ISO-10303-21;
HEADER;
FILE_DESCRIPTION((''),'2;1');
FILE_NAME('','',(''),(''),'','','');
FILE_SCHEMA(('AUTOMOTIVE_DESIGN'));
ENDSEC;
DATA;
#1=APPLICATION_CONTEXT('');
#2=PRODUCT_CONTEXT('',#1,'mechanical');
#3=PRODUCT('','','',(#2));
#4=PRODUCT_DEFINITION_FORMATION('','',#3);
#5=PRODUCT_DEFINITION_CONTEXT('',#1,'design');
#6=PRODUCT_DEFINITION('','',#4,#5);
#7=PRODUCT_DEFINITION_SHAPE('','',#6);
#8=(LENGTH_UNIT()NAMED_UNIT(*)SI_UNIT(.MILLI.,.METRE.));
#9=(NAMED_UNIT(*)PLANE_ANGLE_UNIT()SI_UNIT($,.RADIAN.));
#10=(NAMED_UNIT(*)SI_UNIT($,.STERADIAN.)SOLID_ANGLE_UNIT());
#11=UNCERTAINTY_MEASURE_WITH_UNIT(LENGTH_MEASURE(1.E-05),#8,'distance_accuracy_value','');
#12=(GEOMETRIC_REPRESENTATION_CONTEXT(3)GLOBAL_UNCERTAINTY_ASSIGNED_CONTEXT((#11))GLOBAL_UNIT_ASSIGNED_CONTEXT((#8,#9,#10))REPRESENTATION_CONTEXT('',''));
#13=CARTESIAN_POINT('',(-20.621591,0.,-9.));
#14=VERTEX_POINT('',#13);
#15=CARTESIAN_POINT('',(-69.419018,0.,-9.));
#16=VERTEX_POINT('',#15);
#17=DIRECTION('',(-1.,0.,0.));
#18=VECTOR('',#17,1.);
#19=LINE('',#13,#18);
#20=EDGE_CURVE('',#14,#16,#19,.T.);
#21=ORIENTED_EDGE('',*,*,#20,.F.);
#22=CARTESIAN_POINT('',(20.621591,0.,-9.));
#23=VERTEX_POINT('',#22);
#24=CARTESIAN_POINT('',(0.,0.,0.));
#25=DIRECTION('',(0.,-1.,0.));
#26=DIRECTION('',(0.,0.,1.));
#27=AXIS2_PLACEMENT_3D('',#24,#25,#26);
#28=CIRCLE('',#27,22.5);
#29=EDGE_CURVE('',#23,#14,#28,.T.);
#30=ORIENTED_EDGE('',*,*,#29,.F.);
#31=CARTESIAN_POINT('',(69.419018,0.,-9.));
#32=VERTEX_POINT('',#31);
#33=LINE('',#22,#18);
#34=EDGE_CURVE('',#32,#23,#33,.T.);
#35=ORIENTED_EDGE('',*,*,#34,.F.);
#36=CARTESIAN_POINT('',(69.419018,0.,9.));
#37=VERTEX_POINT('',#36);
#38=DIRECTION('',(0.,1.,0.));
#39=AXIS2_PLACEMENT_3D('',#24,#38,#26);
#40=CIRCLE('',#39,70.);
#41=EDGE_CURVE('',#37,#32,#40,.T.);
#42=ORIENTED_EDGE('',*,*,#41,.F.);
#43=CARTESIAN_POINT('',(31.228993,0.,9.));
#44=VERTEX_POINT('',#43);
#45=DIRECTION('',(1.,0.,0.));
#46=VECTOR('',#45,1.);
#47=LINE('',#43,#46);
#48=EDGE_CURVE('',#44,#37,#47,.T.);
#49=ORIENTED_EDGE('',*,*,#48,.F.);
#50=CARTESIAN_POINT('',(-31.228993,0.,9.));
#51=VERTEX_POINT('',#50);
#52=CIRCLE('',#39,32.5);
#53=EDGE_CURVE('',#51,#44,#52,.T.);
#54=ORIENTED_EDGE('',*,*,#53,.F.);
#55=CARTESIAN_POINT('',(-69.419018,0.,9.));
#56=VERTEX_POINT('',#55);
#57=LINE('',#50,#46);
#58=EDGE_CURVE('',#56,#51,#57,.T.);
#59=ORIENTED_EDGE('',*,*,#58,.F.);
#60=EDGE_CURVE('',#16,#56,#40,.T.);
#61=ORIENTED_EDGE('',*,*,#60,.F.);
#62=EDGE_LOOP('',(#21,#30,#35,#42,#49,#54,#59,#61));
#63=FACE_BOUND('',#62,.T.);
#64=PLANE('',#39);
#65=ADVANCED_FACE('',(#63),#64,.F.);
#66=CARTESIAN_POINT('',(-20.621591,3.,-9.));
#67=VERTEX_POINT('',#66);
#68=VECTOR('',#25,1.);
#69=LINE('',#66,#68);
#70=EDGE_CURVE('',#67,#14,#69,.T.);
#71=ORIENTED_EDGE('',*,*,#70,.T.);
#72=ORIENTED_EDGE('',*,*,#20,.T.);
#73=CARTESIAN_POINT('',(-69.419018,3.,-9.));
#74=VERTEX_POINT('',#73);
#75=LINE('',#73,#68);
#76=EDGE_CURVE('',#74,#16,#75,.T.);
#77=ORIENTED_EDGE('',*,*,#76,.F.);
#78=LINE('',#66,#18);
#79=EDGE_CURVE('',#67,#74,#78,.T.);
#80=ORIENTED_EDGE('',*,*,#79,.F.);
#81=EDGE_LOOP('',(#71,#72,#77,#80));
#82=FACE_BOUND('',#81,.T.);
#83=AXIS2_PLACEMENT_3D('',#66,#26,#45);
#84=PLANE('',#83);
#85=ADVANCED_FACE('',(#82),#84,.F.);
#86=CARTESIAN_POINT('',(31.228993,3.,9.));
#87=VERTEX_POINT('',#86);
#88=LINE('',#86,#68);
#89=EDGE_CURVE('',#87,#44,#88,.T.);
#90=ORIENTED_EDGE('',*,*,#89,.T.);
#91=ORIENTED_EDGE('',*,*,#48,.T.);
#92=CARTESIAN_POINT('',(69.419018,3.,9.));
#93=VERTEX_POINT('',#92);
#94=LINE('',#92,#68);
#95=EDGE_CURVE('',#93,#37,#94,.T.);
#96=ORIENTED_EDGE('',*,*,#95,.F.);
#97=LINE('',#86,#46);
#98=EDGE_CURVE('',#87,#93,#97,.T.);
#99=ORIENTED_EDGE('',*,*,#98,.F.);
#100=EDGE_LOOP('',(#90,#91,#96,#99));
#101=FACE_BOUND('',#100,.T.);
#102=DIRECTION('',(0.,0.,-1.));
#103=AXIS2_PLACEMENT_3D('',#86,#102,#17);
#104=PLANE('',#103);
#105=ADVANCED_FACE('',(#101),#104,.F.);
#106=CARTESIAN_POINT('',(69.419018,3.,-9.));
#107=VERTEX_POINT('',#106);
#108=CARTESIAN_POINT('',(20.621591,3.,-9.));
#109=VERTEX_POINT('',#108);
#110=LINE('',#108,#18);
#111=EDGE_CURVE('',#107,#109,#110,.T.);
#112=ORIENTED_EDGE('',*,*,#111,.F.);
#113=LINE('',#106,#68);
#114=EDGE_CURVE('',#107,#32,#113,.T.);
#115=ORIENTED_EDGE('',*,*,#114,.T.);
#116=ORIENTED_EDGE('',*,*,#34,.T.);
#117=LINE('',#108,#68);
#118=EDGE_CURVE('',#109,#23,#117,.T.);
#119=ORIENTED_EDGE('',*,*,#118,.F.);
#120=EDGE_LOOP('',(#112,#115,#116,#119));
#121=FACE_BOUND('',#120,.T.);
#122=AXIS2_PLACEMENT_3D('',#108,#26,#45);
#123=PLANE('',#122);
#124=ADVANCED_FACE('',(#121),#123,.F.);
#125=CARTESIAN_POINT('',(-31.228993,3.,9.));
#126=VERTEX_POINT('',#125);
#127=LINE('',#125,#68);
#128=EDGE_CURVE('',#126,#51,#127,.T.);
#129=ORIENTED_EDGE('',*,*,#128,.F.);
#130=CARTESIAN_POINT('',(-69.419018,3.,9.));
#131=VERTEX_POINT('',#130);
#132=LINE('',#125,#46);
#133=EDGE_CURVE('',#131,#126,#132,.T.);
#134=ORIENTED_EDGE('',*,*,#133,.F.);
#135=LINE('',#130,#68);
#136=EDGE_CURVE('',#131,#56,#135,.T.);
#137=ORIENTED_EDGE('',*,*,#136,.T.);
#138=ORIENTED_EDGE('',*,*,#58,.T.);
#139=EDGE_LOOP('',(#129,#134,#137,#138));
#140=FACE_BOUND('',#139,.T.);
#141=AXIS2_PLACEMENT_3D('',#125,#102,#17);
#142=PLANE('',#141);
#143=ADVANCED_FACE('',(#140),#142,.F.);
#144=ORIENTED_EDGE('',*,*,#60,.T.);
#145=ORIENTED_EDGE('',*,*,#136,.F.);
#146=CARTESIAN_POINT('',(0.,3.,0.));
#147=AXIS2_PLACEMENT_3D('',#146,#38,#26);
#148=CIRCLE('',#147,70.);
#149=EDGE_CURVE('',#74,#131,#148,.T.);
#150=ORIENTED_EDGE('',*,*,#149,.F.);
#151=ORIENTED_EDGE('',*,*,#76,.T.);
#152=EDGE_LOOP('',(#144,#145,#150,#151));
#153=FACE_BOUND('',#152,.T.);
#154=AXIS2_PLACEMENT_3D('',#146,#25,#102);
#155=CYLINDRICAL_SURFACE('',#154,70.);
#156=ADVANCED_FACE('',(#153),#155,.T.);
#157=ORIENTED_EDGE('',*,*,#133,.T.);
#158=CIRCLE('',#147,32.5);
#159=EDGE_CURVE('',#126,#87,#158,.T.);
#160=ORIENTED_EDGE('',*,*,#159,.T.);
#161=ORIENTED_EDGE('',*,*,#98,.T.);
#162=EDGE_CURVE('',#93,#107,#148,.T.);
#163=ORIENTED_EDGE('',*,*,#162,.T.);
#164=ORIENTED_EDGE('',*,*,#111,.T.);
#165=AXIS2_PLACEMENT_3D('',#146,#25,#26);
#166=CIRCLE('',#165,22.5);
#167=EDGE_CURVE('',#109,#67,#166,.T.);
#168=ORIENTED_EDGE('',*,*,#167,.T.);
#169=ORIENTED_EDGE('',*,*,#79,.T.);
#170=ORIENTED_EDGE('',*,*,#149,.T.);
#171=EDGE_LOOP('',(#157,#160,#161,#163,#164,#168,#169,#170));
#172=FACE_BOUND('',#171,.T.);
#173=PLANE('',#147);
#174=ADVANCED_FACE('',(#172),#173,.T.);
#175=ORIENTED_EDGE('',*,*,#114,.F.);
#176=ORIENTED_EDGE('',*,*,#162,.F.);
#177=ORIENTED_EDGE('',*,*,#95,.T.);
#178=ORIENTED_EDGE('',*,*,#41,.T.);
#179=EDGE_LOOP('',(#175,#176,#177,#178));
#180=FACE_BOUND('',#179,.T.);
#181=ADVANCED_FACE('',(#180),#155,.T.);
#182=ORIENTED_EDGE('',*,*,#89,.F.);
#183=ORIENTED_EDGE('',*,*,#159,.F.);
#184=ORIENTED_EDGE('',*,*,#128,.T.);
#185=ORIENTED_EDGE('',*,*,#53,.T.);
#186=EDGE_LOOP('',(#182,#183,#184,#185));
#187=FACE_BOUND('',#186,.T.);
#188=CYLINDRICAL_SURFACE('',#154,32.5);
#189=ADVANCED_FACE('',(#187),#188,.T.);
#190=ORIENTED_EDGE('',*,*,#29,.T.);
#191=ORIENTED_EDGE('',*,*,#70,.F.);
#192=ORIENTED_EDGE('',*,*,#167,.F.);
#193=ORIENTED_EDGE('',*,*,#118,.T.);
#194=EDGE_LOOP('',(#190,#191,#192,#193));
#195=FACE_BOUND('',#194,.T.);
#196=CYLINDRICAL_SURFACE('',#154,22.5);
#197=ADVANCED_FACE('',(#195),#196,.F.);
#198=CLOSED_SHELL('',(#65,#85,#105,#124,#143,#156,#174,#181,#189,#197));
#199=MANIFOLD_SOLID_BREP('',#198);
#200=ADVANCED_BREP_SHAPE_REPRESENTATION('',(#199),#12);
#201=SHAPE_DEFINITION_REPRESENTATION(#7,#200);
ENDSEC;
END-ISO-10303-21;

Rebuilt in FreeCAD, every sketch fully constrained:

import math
import FreeCAD as App
import Part
import Sketcher
from FreeCAD import Vector
Q = App.Units.Quantity

doc = App.newDocument("Part")
body = doc.addObject("PartDesign::Body", "Body")

sketch1 = body.newObject("Sketcher::SketchObject", "Sketch")
sketch1.AttachmentSupport = (doc.getObject("XZ_Plane"), [""])
sketch1.MapMode = "FlatFace"
sketch1.addGeometry(Part.LineSegment(Vector(-69, 9, 0), Vector(-31, 9, 0)), False)
sketch1.addGeometry(Part.ArcOfCircle(Part.Circle(Vector(0, 0, 0), Vector(0, 0, 1), 32), math.radians(16), math.radians(164)), False)
sketch1.addGeometry(Part.LineSegment(Vector(31, 9, 0), Vector(69, 9, 0)), False)
sketch1.addGeometry(Part.ArcOfCircle(Part.Circle(Vector(0, 0, 0), Vector(0, 0, 1), 70), math.radians(-7.39), math.radians(7.39)), False)
sketch1.addGeometry(Part.LineSegment(Vector(69, -9, 0), Vector(21, -9, 0)), False)
sketch1.addGeometry(Part.ArcOfCircle(Part.Circle(Vector(0, 0, 0), Vector(0, 0, 1), 22), math.radians(-24), math.radians(204)), False)
sketch1.addGeometry(Part.LineSegment(Vector(-21, -9, 0), Vector(-69, -9, 0)), False)
sketch1.addGeometry(Part.ArcOfCircle(Part.Circle(Vector(0, 0, 0), Vector(0, 0, 1), 70), math.radians(172.61), math.radians(187.39)), False)
sketch1.addConstraint(Sketcher.Constraint("Coincident", 0, 2, 1, 2))
sketch1.addConstraint(Sketcher.Constraint("Coincident", 1, 1, 2, 1))
sketch1.addConstraint(Sketcher.Constraint("Coincident", 2, 2, 3, 2))
sketch1.addConstraint(Sketcher.Constraint("Coincident", 3, 1, 4, 1))
sketch1.addConstraint(Sketcher.Constraint("Coincident", 4, 2, 5, 1))
sketch1.addConstraint(Sketcher.Constraint("Coincident", 5, 2, 6, 1))
sketch1.addConstraint(Sketcher.Constraint("Coincident", 6, 2, 7, 2))
sketch1.addConstraint(Sketcher.Constraint("Coincident", 7, 1, 0, 1))
sketch1.addConstraint(Sketcher.Constraint("Horizontal", 0))
sketch1.addConstraint(Sketcher.Constraint("Horizontal", 2))
sketch1.addConstraint(Sketcher.Constraint("Horizontal", 4))
sketch1.addConstraint(Sketcher.Constraint("Horizontal", 6))
sketch1.addConstraint(Sketcher.Constraint("Coincident", 1, 3, -1, 1))
sketch1.addConstraint(Sketcher.Constraint("Coincident", 3, 3, -1, 1))
sketch1.addConstraint(Sketcher.Constraint("Coincident", 5, 3, -1, 1))
sketch1.addConstraint(Sketcher.Constraint("Coincident", 7, 3, -1, 1))
sketch1.addConstraint(Sketcher.Constraint("Equal", 3, 7))
sketch1.addConstraint(Sketcher.Constraint("Horizontal", 0, 2, 1, 1))
sketch1.addConstraint(Sketcher.Constraint("Horizontal", 4, 2, 5, 2))
sketch1.addConstraint(Sketcher.Constraint("Vertical", 2, 2, 3, 1))
sketch1.addConstraint(Sketcher.Constraint("Radius", 3, Q("70 mm")))
sketch1.addConstraint(Sketcher.Constraint("Radius", 1, Q("32.5 mm")))
sketch1.addConstraint(Sketcher.Constraint("Radius", 5, Q("22.5 mm")))
sketch1.addConstraint(Sketcher.Constraint("DistanceY", -1, 1, 0, 2, Q("9 mm")))
pad1 = body.newObject("PartDesign::Pad", "Pad")
pad1.Profile = sketch1
pad1.Length = 3
pad1.Reversed = True

doc.recompute()
